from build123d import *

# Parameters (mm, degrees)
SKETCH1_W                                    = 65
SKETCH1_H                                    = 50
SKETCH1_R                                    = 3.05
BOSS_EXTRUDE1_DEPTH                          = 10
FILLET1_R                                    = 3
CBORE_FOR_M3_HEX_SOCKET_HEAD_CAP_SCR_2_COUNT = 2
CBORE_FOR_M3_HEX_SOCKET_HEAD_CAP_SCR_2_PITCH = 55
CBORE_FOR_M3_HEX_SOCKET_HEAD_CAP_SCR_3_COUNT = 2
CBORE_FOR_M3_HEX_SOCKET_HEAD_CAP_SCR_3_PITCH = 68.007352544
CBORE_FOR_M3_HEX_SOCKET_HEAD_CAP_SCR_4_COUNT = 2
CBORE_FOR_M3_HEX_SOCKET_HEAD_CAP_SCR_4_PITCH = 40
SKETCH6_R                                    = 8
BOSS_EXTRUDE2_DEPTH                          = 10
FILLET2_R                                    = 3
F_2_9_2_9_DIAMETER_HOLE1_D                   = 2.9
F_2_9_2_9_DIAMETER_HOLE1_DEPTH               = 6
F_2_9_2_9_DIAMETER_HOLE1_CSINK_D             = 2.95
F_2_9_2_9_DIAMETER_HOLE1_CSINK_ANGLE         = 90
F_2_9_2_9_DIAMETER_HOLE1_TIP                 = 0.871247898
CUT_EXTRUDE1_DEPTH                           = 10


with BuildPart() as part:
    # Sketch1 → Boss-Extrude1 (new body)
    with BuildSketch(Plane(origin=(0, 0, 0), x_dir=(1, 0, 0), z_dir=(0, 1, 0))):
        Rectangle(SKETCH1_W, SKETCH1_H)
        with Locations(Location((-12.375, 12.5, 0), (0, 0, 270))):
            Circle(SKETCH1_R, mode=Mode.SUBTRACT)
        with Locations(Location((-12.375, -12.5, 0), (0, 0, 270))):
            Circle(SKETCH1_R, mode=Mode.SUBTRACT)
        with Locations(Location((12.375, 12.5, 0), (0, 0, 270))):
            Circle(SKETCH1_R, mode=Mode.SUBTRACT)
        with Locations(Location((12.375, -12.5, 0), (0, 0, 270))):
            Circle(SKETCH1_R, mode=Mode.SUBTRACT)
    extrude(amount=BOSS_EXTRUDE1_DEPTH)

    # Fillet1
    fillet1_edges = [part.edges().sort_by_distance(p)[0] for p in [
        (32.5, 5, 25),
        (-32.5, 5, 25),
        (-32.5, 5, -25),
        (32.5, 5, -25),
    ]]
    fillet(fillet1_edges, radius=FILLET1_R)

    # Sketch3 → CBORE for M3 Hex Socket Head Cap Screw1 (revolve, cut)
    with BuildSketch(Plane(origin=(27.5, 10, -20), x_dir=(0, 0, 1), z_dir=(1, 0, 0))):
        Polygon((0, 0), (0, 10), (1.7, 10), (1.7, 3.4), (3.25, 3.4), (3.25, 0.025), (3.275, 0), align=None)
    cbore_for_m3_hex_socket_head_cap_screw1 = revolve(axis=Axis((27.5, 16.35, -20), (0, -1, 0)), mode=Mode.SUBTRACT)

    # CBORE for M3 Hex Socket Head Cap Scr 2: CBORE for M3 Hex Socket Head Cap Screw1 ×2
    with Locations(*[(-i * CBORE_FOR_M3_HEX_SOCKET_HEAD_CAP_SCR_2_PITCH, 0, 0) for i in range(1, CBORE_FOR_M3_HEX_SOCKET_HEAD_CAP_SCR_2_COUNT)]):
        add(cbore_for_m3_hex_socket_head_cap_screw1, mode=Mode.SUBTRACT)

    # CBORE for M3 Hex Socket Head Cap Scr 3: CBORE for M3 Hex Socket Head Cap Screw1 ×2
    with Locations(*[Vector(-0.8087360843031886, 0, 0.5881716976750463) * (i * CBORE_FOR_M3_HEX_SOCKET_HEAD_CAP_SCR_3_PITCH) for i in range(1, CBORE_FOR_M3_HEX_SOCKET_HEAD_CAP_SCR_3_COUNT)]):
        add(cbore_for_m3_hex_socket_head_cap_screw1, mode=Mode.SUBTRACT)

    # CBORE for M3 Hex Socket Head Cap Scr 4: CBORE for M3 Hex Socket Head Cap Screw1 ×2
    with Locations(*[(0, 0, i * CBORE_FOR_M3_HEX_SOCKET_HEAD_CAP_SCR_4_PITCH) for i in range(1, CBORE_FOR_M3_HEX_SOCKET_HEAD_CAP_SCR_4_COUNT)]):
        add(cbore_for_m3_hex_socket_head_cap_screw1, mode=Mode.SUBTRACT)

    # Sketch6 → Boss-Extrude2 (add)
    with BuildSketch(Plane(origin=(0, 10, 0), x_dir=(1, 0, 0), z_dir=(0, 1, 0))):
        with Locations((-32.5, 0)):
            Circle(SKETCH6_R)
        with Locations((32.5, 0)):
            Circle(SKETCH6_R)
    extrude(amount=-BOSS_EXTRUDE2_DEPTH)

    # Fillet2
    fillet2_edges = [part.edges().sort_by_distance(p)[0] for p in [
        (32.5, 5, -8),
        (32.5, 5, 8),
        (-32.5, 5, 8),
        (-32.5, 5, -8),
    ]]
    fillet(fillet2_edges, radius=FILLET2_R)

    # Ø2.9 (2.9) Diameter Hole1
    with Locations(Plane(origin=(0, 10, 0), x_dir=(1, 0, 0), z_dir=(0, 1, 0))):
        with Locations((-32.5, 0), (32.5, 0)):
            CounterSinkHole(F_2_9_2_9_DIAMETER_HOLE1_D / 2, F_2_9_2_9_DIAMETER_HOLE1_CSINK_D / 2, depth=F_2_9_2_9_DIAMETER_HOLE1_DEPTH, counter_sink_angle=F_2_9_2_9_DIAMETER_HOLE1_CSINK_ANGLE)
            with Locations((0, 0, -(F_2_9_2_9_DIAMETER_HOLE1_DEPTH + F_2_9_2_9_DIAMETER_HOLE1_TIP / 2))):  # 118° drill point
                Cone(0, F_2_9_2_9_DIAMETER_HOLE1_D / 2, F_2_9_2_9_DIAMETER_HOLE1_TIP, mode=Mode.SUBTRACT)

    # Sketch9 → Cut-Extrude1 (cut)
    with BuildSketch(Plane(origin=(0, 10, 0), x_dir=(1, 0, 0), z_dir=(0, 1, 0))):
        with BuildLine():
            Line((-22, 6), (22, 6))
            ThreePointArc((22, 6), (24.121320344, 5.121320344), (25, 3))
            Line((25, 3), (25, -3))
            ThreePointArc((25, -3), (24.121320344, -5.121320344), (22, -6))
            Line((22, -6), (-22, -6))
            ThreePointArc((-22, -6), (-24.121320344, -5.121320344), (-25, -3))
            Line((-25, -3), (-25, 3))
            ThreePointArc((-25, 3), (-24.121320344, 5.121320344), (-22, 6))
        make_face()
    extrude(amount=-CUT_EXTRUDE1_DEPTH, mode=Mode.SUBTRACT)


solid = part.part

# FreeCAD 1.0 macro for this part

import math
import FreeCAD as App
import Part
import Sketcher
Q = App.Units.Quantity


def edges_at(feature, points):
    """Names of the edges that pass closest to the given points."""
    edges = feature.Shape.Edges
    near = lambda p: min(range(len(edges)), key=lambda i: edges[i].distToShape(Part.Vertex(*p))[0])
    return sorted({f"Edge{near(p) + 1}" for p in points})


def add_polygon(sketch, points):
    """Adds a closed chain of lines whose ends are joined by coincident constraints."""
    first, n = sketch.GeometryCount, len(points)
    for a, b in zip(points, points[1:] + points[:1]):
        sketch.addGeometry(Part.LineSegment(App.Vector(*a, 0), App.Vector(*b, 0)), False)
    for i in range(n):
        sketch.addConstraint(Sketcher.Constraint("Coincident", first + i, 2, first + (i + 1) % n, 1))

doc = App.newDocument("Part")
body = doc.addObject("PartDesign::Body", "Body")

sketch1 = body.newObject("Sketcher::SketchObject", "Sketch")
sketch1.AttachmentSupport = (doc.getObject("XZ_Plane"), [""])
sketch1.MapMode = "FlatFace"
add_polygon(sketch1, [(-32.5, -25), (-32.5, 25), (32.5, 25), (32.5, -25)])
sketch1.addGeometry(Part.Circle(App.Vector(-12.4, 12.5, 0), App.Vector(0, 0, 1), 3), False)
sketch1.addGeometry(Part.Circle(App.Vector(12.4, 12.5, 0), App.Vector(0, 0, 1), 3), False)
sketch1.addGeometry(Part.Circle(App.Vector(-12.4, -12.5, 0), App.Vector(0, 0, 1), 3), False)
sketch1.addGeometry(Part.Circle(App.Vector(12.4, -12.5, 0), App.Vector(0, 0, 1), 3), False)
sketch1.addConstraint(Sketcher.Constraint("Vertical", 0))
sketch1.addConstraint(Sketcher.Constraint("Horizontal", 1))
sketch1.addConstraint(Sketcher.Constraint("Vertical", 2))
sketch1.addConstraint(Sketcher.Constraint("Horizontal", 3))
sketch1.addConstraint(Sketcher.Constraint("Equal", 4, 5))
sketch1.addConstraint(Sketcher.Constraint("Equal", 5, 6))
sketch1.addConstraint(Sketcher.Constraint("Equal", 6, 7))
sketch1.addConstraint(Sketcher.Constraint("Symmetric", 5, 3, 6, 3, -1, 1))
sketch1.addConstraint(Sketcher.Constraint("Symmetric", 4, 3, 7, 3, -1, 1))
sketch1.addConstraint(Sketcher.Constraint("Symmetric", 0, 2, 2, 2, -1, 1))
sketch1.addConstraint(Sketcher.Constraint("Symmetric", 4, 3, 5, 3, -2))
sketch1.addConstraint(Sketcher.Constraint("Diameter", 4, 6.1))
sketch1.addConstraint(Sketcher.Constraint("DistanceX", 1, 1, 1, 2, 65.0))
sketch1.addConstraint(Sketcher.Constraint("DistanceY", 0, 1, 0, 2, 50.0))
sketch1.addConstraint(Sketcher.Constraint("DistanceY", 6, 3, 4, 3, 25.0))
sketch1.addConstraint(Sketcher.Constraint("DistanceX", 4, 3, 5, 3, 24.75))
pad1 = body.newObject("PartDesign::Pad", "Pad")
pad1.Profile = sketch1
pad1.Length = 10
pad1.Reversed = True
doc.recompute()

fillet = body.newObject("PartDesign::Fillet", "Fillet")
fillet.Base = (pad1, edges_at(pad1, [
    (32.5, 5, 25),
    (-32.5, 5, 25),
    (-32.5, 5, -25),
    (32.5, 5, -25),
]))
fillet.Radius = 3

sketch2 = body.newObject("Sketcher::SketchObject", "Sketch001")
sketch2.AttachmentSupport = (doc.getObject("YZ_Plane"), [""])
sketch2.MapMode = "FlatFace"
sketch2.AttachmentOffset = App.Placement(App.Vector(0, 0, 27.5), App.Rotation())
add_polygon(sketch2, [(0, -20), (10, -20), (10, -16.725), (9.975, -16.75), (6.6, -16.75), (6.6, -18.3), (0, -18.3)])
sketch2.addGeometry(Part.LineSegment(App.Vector(10, -20, 0), App.Vector(0, -20, 0)), True)
sketch2.addConstraint(Sketcher.Constraint("Horizontal", 0))
sketch2.addConstraint(Sketcher.Constraint("Vertical", 1))
sketch2.addConstraint(Sketcher.Constraint("Horizontal", 3))
sketch2.addConstraint(Sketcher.Constraint("Vertical", 4))
sketch2.addConstraint(Sketcher.Constraint("Horizontal", 5))
sketch2.addConstraint(Sketcher.Constraint("Vertical", 6))
sketch2.addConstraint(Sketcher.Constraint("Horizontal", 7))
sketch2.addConstraint(Sketcher.Constraint("Coincident", 7, 1, 0, 2))
sketch2.addConstraint(Sketcher.Constraint("PointOnObject", 5, 2, -2))
sketch2.addConstraint(Sketcher.Constraint("PointOnObject", 7, 2, -2))
sketch2.addConstraint(Sketcher.Constraint("DistanceX", 0, 1, 0, 2, 10.0))
sketch2.addConstraint(Sketcher.Constraint("Angle", 2, Q("-135 deg")))
sketch2.addConstraint(Sketcher.Constraint("DistanceX", 5, 2, 5, 1, 6.6))
sketch2.addConstraint(Sketcher.Constraint("DistanceY", 6, 2, 6, 1, 1.7))
sketch2.addConstraint(Sketcher.Constraint("DistanceY", 0, 2, -1, 1, 20.0))
sketch2.addConstraint(Sketcher.Constraint("DistanceY", 4, 2, 4, 1, 1.55))
sketch2.addConstraint(Sketcher.Constraint("DistanceX", 3, 2, 3, 1, 3.375))
groove = body.newObject("PartDesign::Groove", "Groove")
groove.Profile = sketch2
groove.ReferenceAxis = (sketch2, ["Axis0"])
groove.Angle = 360
doc.recompute()

linearpattern = body.newObject("PartDesign::LinearPattern", "LinearPattern")
linearpattern.Originals = [groove]
linearpattern.Direction = (doc.getObject("X_Axis"), [""])
linearpattern.Mode = "offset"
linearpattern.Offset = 55
linearpattern.Occurrences = 2
linearpattern.Reversed = True
body.Tip = linearpattern
doc.recompute()

datumline = body.newObject("PartDesign::Line", "DatumLine")
datumline.Placement = App.Placement(App.Vector(0, 0, 0), App.Rotation(App.Vector(0, 0, 1), App.Vector(-0.808736084, 0, 0.588171698)))
linearpattern2 = body.newObject("PartDesign::LinearPattern", "LinearPattern001")
linearpattern2.Originals = [groove]
linearpattern2.Direction = (datumline, [""])
linearpattern2.Mode = "offset"
linearpattern2.Offset = 68.007353
linearpattern2.Occurrences = 2
body.Tip = linearpattern2
doc.recompute()

linearpattern3 = body.newObject("PartDesign::LinearPattern", "LinearPattern002")
linearpattern3.Originals = [groove]
linearpattern3.Direction = (doc.getObject("Z_Axis"), [""])
linearpattern3.Mode = "offset"
linearpattern3.Offset = 40
linearpattern3.Occurrences = 2
body.Tip = linearpattern3

sketch3 = body.newObject("Sketcher::SketchObject", "Sketch002")
sketch3.AttachmentSupport = (doc.getObject("XZ_Plane"), [""])
sketch3.MapMode = "FlatFace"
sketch3.AttachmentOffset = App.Placement(App.Vector(0, 0, -10), App.Rotation())
sketch3.addGeometry(Part.Circle(App.Vector(-32, 0, 0), App.Vector(0, 0, 1), 8), False)
sketch3.addGeometry(Part.Circle(App.Vector(32, 0, 0), App.Vector(0, 0, 1), 8), False)
sketch3.addConstraint(Sketcher.Constraint("Equal", 0, 1))
sketch3.addConstraint(Sketcher.Constraint("Symmetric", 0, 3, 1, 3, -1, 1))
sketch3.addConstraint(Sketcher.Constraint("PointOnObject", 0, 3, -1))
sketch3.addConstraint(Sketcher.Constraint("Diameter", 0, 16.0))
sketch3.addConstraint(Sketcher.Constraint("DistanceX", 0, 3, 1, 3, 65.0))
pad2 = body.newObject("PartDesign::Pad", "Pad001")
pad2.Profile = sketch3
pad2.Length = 10
doc.recompute()

fillet2 = body.newObject("PartDesign::Fillet", "Fillet001")
fillet2.Base = (pad2, edges_at(pad2, [
    (32.5, 5, -8),
    (32.5, 5, 8),
    (-32.5, 5, 8),
    (-32.5, 5, -8),
]))
fillet2.Radius = 3

sketch4 = body.newObject("Sketcher::SketchObject", "Sketch003")
sketch4.AttachmentSupport = (doc.getObject("XZ_Plane"), [""])
sketch4.MapMode = "FlatFace"
sketch4.AttachmentOffset = App.Placement(App.Vector(0, 0, -10), App.Rotation())
sketch4.addGeometry(Part.Circle(App.Vector(-32.5, 0, 0), App.Vector(0, 0, 1), 1.4), False)
sketch4.addGeometry(Part.Circle(App.Vector(32.5, 0, 0), App.Vector(0, 0, 1), 1.4), False)
sketch4.addConstraint(Sketcher.Constraint("Equal", 0, 1))
sketch4.addConstraint(Sketcher.Constraint("Symmetric", 0, 3, 1, 3, -1, 1))
sketch4.addConstraint(Sketcher.Constraint("PointOnObject", 0, 3, -1))
sketch4.addConstraint(Sketcher.Constraint("Diameter", 0, 2.9))
sketch4.addConstraint(Sketcher.Constraint("DistanceX", 0, 3, 1, 3, 65.0))
doc.recompute()
hole = body.newObject("PartDesign::Hole", "Hole")
hole.Profile = sketch4
hole.ThreadType = "None"
hole.Diameter = 2.9
hole.DepthType = "Dimension"
hole.Depth = 6
hole.DrillPoint = "Angled"
hole.DrillPointAngle = 118
hole.HoleCutType = "Countersink"
hole.HoleCutDiameter = 2.95
hole.HoleCutCountersinkAngle = 90
hole.Reversed = True

sketch5 = body.newObject("Sketcher::SketchObject", "Sketch004")
sketch5.AttachmentSupport = (doc.getObject("XZ_Plane"), [""])
sketch5.MapMode = "FlatFace"
sketch5.AttachmentOffset = App.Placement(App.Vector(0, 0, -10), App.Rotation())
sketch5.addGeometry(Part.LineSegment(App.Vector(22, -6, 0), App.Vector(-22, -6, 0)), False)
sketch5.addGeometry(Part.ArcOfCircle(Part.Circle(App.Vector(-22, -3, 0), App.Vector(0, 0, 1), 3), math.radians(180), math.radians(270)), False)
sketch5.addGeometry(Part.LineSegment(App.Vector(-25, -3, 0), App.Vector(-25, 3, 0)), False)
sketch5.addGeometry(Part.ArcOfCircle(Part.Circle(App.Vector(-22, 3, 0), App.Vector(0, 0, 1), 3), math.radians(90), math.radians(180)), False)
sketch5.addGeometry(Part.LineSegment(App.Vector(-22, 6, 0), App.Vector(22, 6, 0)), False)
sketch5.addGeometry(Part.ArcOfCircle(Part.Circle(App.Vector(22, 3, 0), App.Vector(0, 0, 1), 3), math.radians(0), math.radians(90)), False)
sketch5.addGeometry(Part.LineSegment(App.Vector(25, 3, 0), App.Vector(25, -3, 0)), False)
sketch5.addGeometry(Part.ArcOfCircle(Part.Circle(App.Vector(22, -3, 0), App.Vector(0, 0, 1), 3), math.radians(-90), math.radians(0)), False)
sketch5.addConstraint(Sketcher.Constraint("Tangent", 0, 2, 1, 2))
sketch5.addConstraint(Sketcher.Constraint("Tangent", 1, 1, 2, 1))
sketch5.addConstraint(Sketcher.Constraint("Tangent", 2, 2, 3, 2))
sketch5.addConstraint(Sketcher.Constraint("Tangent", 3, 1, 4, 1))
sketch5.addConstraint(Sketcher.Constraint("Tangent", 4, 2, 5, 2))
sketch5.addConstraint(Sketcher.Constraint("Tangent", 5, 1, 6, 1))
sketch5.addConstraint(Sketcher.Constraint("Tangent", 6, 2, 7, 2))
sketch5.addConstraint(Sketcher.Constraint("Tangent", 7, 1, 0, 1))
sketch5.addConstraint(Sketcher.Constraint("Horizontal", 0))
sketch5.addConstraint(Sketcher.Constraint("Vertical", 2))
sketch5.addConstraint(Sketcher.Constraint("Horizontal", 4))
sketch5.addConstraint(Sketcher.Constraint("Vertical", 6))
sketch5.addConstraint(Sketcher.Constraint("Equal", 1, 3))
sketch5.addConstraint(Sketcher.Constraint("Equal", 3, 5))
sketch5.addConstraint(Sketcher.Constraint("Equal", 5, 7))
sketch5.addConstraint(Sketcher.Constraint("Symmetric", 1, 3, 5, 3, -1, 1))
sketch5.addConstraint(Sketcher.Constraint("Radius", 1, 3.0))
sketch5.addConstraint(Sketcher.Constraint("DistanceX", 0, 2, 0, 1, 44.0))
sketch5.addConstraint(Sketcher.Constraint("DistanceY", 2, 1, 2, 2, 6.0))
pocket1 = body.newObject("PartDesign::Pocket", "Pocket")
pocket1.Profile = sketch5
pocket1.Length = 10
pocket1.Reversed = True

doc.recompute()
